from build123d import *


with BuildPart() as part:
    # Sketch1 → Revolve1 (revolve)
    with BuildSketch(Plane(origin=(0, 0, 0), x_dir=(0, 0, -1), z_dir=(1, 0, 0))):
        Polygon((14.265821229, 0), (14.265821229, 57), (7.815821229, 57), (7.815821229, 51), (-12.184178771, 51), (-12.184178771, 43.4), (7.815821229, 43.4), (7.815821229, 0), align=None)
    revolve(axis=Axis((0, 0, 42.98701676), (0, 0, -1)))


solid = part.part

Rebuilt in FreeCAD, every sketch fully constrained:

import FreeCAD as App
import Part
import Sketcher
from FreeCAD import Vector

doc = App.newDocument("Part")
body = doc.addObject("PartDesign::Body", "Body")

sketch1 = body.newObject("Sketcher::SketchObject", "Sketch")
sketch1.AttachmentSupport = (doc.getObject("YZ_Plane"), [""])
sketch1.MapMode = "FlatFace"
sketch1.addGeometry([
    Part.LineSegment(Vector(0, -14.265821, 0), Vector(57, -14.265821, 0)),
    Part.LineSegment(Vector(57, -14.265821, 0), Vector(57, -7.815821, 0)),
    Part.LineSegment(Vector(57, -7.815821, 0), Vector(51, -7.815821, 0)),
    Part.LineSegment(Vector(51, -7.815821, 0), Vector(51, 12.184179, 0)),
    Part.LineSegment(Vector(51, 12.184179, 0), Vector(43.4, 12.184179, 0)),
    Part.LineSegment(Vector(43.4, 12.184179, 0), Vector(43.4, -7.815821, 0)),
    Part.LineSegment(Vector(43.4, -7.815821, 0), Vector(0, -7.815821, 0)),
    Part.LineSegment(Vector(0, -7.815821, 0), Vector(0, -14.265821, 0)),
], False)
sketch1.addConstraint([
    Sketcher.Constraint("Coincident", 0, 2, 1, 1),
    Sketcher.Constraint("Coincident", 1, 2, 2, 1),
    Sketcher.Constraint("Coincident", 2, 2, 3, 1),
    Sketcher.Constraint("Coincident", 3, 2, 4, 1),
    Sketcher.Constraint("Coincident", 4, 2, 5, 1),
    Sketcher.Constraint("Coincident", 5, 2, 6, 1),
    Sketcher.Constraint("Coincident", 6, 2, 7, 1),
    Sketcher.Constraint("Coincident", 7, 2, 0, 1),
    Sketcher.Constraint("Horizontal", 0),
    Sketcher.Constraint("Vertical", 1),
    Sketcher.Constraint("Horizontal", 2),
    Sketcher.Constraint("Vertical", 3),
    Sketcher.Constraint("Horizontal", 4),
    Sketcher.Constraint("Vertical", 5),
    Sketcher.Constraint("Horizontal", 6),
    Sketcher.Constraint("Vertical", 7),
    Sketcher.Constraint("PointOnObject", 6, 2, -2),
    Sketcher.Constraint("Horizontal", 2, 2, 5, 2),
    Sketcher.Constraint("DistanceX", 0, 1, 0, 2, 57.0),
    Sketcher.Constraint("DistanceX", 2, 2, 2, 1, 6.0),
    Sketcher.Constraint("DistanceY", 3, 1, 3, 2, 20.0),
    Sketcher.Constraint("DistanceX", 4, 2, 4, 1, 7.6),
    Sketcher.Constraint("DistanceY", 1, 1, 1, 2, 6.45),
    Sketcher.Constraint("DistanceY", 0, 2, -1, 1, 14.265821),
])
revolution = body.newObject("PartDesign::Revolution", "Revolution")
revolution.Profile = sketch1
revolution.ReferenceAxis = (sketch1, ["V_Axis"])
revolution.Angle = 360

doc.recompute()
